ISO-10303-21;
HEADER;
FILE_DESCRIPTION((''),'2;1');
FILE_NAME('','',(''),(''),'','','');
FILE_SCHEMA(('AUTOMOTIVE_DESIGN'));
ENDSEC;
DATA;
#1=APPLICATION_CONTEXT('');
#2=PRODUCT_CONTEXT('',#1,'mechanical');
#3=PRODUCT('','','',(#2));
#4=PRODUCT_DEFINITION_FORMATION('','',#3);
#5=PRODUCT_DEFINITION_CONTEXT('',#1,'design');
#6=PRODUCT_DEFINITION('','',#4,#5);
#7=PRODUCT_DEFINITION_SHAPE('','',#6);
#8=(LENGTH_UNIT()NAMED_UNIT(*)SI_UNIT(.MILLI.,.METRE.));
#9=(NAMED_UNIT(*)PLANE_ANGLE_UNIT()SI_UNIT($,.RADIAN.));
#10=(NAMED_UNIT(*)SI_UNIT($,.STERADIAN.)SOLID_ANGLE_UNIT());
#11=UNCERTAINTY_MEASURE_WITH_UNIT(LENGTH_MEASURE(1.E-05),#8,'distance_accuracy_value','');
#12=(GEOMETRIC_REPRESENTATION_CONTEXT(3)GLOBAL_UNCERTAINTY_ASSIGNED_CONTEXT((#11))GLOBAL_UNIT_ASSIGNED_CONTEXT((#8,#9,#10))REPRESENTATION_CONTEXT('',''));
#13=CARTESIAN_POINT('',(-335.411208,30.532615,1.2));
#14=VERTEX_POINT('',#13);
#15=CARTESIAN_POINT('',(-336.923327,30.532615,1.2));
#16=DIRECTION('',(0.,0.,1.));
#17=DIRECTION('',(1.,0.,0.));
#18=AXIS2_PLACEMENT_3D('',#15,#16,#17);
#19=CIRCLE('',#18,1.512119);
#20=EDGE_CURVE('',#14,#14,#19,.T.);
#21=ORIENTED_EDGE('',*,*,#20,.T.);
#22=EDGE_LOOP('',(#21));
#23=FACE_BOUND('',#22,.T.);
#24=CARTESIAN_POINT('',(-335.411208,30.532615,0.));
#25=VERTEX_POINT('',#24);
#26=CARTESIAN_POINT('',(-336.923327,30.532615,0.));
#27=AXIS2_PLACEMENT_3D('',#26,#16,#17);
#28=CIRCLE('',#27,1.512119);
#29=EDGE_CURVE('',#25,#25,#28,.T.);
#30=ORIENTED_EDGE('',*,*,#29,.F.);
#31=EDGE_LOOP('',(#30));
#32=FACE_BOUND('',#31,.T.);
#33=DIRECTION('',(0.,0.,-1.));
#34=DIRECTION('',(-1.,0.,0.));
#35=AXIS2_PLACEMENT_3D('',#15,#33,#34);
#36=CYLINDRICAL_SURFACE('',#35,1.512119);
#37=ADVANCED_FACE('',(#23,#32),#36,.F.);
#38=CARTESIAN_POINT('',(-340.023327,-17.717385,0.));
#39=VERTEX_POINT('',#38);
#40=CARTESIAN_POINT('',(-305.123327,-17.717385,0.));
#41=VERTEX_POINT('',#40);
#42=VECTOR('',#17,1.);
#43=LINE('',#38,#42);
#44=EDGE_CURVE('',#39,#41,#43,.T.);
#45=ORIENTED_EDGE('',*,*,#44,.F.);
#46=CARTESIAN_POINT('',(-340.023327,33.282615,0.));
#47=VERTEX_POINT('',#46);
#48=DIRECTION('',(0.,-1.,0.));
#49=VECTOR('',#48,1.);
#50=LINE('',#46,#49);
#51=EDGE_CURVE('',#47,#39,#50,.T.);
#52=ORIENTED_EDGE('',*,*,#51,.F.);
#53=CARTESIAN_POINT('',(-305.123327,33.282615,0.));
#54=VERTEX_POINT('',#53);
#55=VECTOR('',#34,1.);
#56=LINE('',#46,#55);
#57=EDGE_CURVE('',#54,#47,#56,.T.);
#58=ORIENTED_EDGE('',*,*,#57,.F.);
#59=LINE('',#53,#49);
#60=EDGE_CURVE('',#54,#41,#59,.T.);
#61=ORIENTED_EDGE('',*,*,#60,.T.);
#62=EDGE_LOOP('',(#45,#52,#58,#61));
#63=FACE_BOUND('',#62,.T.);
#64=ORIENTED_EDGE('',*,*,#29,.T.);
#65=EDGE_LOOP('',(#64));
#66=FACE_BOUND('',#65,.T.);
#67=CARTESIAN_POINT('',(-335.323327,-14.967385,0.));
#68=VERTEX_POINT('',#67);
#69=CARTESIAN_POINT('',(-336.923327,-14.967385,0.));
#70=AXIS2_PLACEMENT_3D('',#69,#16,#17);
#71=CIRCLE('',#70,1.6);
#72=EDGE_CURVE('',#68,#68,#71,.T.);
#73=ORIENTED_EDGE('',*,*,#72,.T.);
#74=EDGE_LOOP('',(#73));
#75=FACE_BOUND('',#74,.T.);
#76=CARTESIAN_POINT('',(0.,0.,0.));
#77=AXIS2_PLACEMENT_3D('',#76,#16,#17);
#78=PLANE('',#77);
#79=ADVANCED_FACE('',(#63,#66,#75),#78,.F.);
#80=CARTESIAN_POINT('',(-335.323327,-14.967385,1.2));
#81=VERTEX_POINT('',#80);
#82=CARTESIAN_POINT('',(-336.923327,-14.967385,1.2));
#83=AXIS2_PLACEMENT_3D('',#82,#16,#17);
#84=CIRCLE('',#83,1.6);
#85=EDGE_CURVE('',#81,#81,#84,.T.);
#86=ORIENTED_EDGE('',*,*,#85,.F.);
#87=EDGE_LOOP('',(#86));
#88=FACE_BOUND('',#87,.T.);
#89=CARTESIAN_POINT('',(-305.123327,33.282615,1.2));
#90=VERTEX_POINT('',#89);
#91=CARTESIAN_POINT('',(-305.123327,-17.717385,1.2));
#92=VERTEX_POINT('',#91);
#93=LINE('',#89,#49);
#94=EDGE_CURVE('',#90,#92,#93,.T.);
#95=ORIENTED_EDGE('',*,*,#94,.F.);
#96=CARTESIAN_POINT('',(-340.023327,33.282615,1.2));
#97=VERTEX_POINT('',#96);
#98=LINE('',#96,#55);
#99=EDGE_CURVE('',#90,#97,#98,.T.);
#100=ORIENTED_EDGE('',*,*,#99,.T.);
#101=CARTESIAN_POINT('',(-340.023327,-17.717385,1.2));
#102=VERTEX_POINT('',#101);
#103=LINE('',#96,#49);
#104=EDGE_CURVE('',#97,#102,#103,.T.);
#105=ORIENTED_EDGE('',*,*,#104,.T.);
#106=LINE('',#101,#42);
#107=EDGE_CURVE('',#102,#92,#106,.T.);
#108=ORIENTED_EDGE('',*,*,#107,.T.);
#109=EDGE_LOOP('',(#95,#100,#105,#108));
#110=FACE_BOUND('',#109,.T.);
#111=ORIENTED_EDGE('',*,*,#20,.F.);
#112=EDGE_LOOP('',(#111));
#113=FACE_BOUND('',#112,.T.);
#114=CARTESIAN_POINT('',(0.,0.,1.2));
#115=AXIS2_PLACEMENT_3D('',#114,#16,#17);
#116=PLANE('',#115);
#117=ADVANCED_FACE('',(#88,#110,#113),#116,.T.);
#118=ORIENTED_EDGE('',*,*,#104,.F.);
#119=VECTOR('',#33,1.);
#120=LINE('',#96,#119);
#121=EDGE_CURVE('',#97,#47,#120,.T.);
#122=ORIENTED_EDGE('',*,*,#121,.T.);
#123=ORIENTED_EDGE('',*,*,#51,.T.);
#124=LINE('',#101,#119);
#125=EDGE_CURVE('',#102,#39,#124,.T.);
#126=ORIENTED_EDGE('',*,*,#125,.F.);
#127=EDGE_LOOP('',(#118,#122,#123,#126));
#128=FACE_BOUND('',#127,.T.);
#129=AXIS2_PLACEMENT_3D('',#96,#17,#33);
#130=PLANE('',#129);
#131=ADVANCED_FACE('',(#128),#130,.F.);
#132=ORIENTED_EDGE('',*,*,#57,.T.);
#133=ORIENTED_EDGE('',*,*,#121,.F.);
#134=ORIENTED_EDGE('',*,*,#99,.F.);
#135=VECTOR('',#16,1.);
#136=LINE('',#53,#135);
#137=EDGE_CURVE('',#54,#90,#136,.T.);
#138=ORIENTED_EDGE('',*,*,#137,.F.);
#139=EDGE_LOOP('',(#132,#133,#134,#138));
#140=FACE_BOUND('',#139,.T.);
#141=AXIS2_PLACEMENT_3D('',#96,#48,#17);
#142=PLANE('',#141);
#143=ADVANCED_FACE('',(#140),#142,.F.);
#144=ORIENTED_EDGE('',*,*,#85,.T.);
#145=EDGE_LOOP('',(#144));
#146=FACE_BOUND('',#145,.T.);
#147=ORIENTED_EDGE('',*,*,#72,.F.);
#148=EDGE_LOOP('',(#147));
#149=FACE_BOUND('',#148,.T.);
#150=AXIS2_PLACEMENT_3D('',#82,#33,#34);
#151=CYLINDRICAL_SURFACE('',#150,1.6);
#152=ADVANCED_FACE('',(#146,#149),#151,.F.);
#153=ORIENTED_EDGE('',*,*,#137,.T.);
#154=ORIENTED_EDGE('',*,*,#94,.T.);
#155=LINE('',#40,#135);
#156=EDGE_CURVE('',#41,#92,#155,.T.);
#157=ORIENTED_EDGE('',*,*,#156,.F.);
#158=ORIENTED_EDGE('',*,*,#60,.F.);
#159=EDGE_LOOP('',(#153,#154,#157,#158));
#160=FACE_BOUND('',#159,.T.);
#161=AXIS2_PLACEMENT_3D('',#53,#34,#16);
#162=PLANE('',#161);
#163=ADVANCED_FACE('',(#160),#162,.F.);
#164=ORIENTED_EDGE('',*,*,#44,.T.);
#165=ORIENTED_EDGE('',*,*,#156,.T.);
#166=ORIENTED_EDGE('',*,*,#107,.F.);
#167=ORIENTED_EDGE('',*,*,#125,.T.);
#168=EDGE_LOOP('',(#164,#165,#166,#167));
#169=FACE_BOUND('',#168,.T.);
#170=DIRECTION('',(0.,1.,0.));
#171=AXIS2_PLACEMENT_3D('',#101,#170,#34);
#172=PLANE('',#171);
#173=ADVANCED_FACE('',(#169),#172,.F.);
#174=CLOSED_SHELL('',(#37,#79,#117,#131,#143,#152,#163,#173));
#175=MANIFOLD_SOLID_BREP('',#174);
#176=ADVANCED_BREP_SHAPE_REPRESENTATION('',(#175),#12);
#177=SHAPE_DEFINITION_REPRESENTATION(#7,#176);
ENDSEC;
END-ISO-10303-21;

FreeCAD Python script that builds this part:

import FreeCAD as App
import Part
import Sketcher

V = App.Vector
Q = App.Units.Quantity

doc = App.newDocument("Part")
params = doc.addObject("Spreadsheet::Sheet", "Params")
for row, (alias, value) in enumerate([
    ("sketch1_diameter", "3.2 mm"),
    ("sketch1_height", "51 mm"),
    ("sketch1_width", "69.8 mm"),
    ("pad1_length", "1.2 mm"),
    ("sketch2_height", "51 mm"),
    ("sketch2_width", "34.9 mm"),
], start=1):
    params.set(f"A{row}", alias)
    params.set(f"B{row}", "=" + value)
    params.setAlias(f"B{row}", alias)

body = doc.addObject("PartDesign::Body", "Body")

sketch1 = body.newObject("Sketcher::SketchObject", "Sketch")
sketch1.AttachmentSupport = (doc.getObject("XY_Plane"), [""])
sketch1.MapMode = "FlatFace"
sketch1.addGeometry([
    Part.LineSegment(V(-340.023327, 33.282615, 0), V(-340.023327, -17.717385, 0)),
    Part.LineSegment(V(-340.023327, -17.717385, 0), V(-270.223327, -17.717385, 0)),
    Part.LineSegment(V(-270.223327, -17.717385, 0), V(-270.223327, 33.282615, 0)),
    Part.LineSegment(V(-270.223327, 33.282615, 0), V(-340.023327, 33.282615, 0)),
    Part.Circle(V(-336.923327, -14.967385, 0), V(0, 0, 1), 1.6),
    Part.Circle(V(-273.323327, -14.967385, 0), V(0, 0, 1), 1.6),
    Part.Circle(V(-336.923327, 30.532615, 0), V(0, 0, 1), 1.512119),
    Part.Circle(V(-273.323327, 30.532615, 0), V(0, 0, 1), 1.6),
], False)
sketch1.addConstraint([
    Sketcher.Constraint("Coincident", 0, 2, 1, 1),
    Sketcher.Constraint("Coincident", 1, 2, 2, 1),
    Sketcher.Constraint("Coincident", 2, 2, 3, 1),
    Sketcher.Constraint("Coincident", 3, 2, 0, 1),
    Sketcher.Constraint("Vertical", 0),
    Sketcher.Constraint("Horizontal", 1),
    Sketcher.Constraint("Vertical", 2),
    Sketcher.Constraint("Horizontal", 3),
    Sketcher.Constraint("Equal", 4, 5),
    Sketcher.Constraint("Equal", 5, 7),
    Sketcher.Constraint("Horizontal", 4, 3, 5, 3),
    Sketcher.Constraint("Horizontal", 6, 3, 7, 3),
    Sketcher.Constraint("Vertical", 4, 3, 6, 3),
    Sketcher.Constraint("Vertical", 5, 3, 7, 3),
    Sketcher.Constraint("Diameter", 4, Q("3.2 mm")),
    Sketcher.Constraint("DistanceY", 0, 2, 0, 1, Q("51 mm")),
    Sketcher.Constraint("DistanceX", 1, 1, 1, 2, Q("69.8 mm")),
    Sketcher.Constraint("DistanceX", 4, 3, 5, 3, Q("63.6 mm")),
    Sketcher.Constraint("DistanceY", 4, 3, 6, 3, Q("45.5 mm")),
    Sketcher.Constraint("DistanceX", 0, 2, 4, 3, Q("3.1 mm")),
    Sketcher.Constraint("Diameter", 6, Q("3.024238 mm")),
    Sketcher.Constraint("DistanceY", 0, 2, 4, 3, Q("2.75 mm")),
    Sketcher.Constraint("DistanceX", 4, 3, -1, 1, Q("336.923327 mm")),
    Sketcher.Constraint("DistanceY", 4, 3, -1, 1, Q("14.967385 mm")),
])
sketch1.setExpression("Constraints[14]", "Params.sketch1_diameter")
sketch1.setExpression("Constraints[15]", "Params.sketch1_height")
sketch1.setExpression("Constraints[16]", "Params.sketch1_width")
pad1 = body.newObject("PartDesign::Pad", "Pad")
pad1.Profile = sketch1
pad1.setExpression("Length", "Params.pad1_length")

sketch2 = body.newObject("Sketcher::SketchObject", "Sketch001")
sketch2.AttachmentSupport = (doc.getObject("XY_Plane"), [""])
sketch2.MapMode = "FlatFace"
sketch2.AttachmentOffset = App.Placement(V(0, 0, 1.2), App.Rotation())
sketch2.addGeometry([
    Part.LineSegment(V(-305.123327, 33.282615, 0), V(-305.123327, -17.717385, 0)),
    Part.LineSegment(V(-305.123327, -17.717385, 0), V(-270.223327, -17.717385, 0)),
    Part.LineSegment(V(-270.223327, -17.717385, 0), V(-270.223327, 33.282615, 0)),
    Part.LineSegment(V(-270.223327, 33.282615, 0), V(-305.123327, 33.282615, 0)),
], False)
sketch2.addConstraint([
    Sketcher.Constraint("Coincident", 0, 2, 1, 1),
    Sketcher.Constraint("Coincident", 1, 2, 2, 1),
    Sketcher.Constraint("Coincident", 2, 2, 3, 1),
    Sketcher.Constraint("Coincident", 3, 2, 0, 1),
    Sketcher.Constraint("Vertical", 0),
    Sketcher.Constraint("Horizontal", 1),
    Sketcher.Constraint("Vertical", 2),
    Sketcher.Constraint("Horizontal", 3),
    Sketcher.Constraint("DistanceY", 0, 2, 0, 1, Q("51 mm")),
    Sketcher.Constraint("DistanceX", 1, 1, 1, 2, Q("34.9 mm")),
    Sketcher.Constraint("DistanceX", 0, 2, -1, 1, Q("305.123327 mm")),
    Sketcher.Constraint("DistanceY", 0, 2, -1, 1, Q("17.717385 mm")),
])
sketch2.setExpression("Constraints[8]", "Params.sketch2_height")
sketch2.setExpression("Constraints[9]", "Params.sketch2_width")
pocket1 = body.newObject("PartDesign::Pocket", "Pocket")
pocket1.Profile = sketch2
pocket1.Type = "ThroughAll"

doc.recompute()
